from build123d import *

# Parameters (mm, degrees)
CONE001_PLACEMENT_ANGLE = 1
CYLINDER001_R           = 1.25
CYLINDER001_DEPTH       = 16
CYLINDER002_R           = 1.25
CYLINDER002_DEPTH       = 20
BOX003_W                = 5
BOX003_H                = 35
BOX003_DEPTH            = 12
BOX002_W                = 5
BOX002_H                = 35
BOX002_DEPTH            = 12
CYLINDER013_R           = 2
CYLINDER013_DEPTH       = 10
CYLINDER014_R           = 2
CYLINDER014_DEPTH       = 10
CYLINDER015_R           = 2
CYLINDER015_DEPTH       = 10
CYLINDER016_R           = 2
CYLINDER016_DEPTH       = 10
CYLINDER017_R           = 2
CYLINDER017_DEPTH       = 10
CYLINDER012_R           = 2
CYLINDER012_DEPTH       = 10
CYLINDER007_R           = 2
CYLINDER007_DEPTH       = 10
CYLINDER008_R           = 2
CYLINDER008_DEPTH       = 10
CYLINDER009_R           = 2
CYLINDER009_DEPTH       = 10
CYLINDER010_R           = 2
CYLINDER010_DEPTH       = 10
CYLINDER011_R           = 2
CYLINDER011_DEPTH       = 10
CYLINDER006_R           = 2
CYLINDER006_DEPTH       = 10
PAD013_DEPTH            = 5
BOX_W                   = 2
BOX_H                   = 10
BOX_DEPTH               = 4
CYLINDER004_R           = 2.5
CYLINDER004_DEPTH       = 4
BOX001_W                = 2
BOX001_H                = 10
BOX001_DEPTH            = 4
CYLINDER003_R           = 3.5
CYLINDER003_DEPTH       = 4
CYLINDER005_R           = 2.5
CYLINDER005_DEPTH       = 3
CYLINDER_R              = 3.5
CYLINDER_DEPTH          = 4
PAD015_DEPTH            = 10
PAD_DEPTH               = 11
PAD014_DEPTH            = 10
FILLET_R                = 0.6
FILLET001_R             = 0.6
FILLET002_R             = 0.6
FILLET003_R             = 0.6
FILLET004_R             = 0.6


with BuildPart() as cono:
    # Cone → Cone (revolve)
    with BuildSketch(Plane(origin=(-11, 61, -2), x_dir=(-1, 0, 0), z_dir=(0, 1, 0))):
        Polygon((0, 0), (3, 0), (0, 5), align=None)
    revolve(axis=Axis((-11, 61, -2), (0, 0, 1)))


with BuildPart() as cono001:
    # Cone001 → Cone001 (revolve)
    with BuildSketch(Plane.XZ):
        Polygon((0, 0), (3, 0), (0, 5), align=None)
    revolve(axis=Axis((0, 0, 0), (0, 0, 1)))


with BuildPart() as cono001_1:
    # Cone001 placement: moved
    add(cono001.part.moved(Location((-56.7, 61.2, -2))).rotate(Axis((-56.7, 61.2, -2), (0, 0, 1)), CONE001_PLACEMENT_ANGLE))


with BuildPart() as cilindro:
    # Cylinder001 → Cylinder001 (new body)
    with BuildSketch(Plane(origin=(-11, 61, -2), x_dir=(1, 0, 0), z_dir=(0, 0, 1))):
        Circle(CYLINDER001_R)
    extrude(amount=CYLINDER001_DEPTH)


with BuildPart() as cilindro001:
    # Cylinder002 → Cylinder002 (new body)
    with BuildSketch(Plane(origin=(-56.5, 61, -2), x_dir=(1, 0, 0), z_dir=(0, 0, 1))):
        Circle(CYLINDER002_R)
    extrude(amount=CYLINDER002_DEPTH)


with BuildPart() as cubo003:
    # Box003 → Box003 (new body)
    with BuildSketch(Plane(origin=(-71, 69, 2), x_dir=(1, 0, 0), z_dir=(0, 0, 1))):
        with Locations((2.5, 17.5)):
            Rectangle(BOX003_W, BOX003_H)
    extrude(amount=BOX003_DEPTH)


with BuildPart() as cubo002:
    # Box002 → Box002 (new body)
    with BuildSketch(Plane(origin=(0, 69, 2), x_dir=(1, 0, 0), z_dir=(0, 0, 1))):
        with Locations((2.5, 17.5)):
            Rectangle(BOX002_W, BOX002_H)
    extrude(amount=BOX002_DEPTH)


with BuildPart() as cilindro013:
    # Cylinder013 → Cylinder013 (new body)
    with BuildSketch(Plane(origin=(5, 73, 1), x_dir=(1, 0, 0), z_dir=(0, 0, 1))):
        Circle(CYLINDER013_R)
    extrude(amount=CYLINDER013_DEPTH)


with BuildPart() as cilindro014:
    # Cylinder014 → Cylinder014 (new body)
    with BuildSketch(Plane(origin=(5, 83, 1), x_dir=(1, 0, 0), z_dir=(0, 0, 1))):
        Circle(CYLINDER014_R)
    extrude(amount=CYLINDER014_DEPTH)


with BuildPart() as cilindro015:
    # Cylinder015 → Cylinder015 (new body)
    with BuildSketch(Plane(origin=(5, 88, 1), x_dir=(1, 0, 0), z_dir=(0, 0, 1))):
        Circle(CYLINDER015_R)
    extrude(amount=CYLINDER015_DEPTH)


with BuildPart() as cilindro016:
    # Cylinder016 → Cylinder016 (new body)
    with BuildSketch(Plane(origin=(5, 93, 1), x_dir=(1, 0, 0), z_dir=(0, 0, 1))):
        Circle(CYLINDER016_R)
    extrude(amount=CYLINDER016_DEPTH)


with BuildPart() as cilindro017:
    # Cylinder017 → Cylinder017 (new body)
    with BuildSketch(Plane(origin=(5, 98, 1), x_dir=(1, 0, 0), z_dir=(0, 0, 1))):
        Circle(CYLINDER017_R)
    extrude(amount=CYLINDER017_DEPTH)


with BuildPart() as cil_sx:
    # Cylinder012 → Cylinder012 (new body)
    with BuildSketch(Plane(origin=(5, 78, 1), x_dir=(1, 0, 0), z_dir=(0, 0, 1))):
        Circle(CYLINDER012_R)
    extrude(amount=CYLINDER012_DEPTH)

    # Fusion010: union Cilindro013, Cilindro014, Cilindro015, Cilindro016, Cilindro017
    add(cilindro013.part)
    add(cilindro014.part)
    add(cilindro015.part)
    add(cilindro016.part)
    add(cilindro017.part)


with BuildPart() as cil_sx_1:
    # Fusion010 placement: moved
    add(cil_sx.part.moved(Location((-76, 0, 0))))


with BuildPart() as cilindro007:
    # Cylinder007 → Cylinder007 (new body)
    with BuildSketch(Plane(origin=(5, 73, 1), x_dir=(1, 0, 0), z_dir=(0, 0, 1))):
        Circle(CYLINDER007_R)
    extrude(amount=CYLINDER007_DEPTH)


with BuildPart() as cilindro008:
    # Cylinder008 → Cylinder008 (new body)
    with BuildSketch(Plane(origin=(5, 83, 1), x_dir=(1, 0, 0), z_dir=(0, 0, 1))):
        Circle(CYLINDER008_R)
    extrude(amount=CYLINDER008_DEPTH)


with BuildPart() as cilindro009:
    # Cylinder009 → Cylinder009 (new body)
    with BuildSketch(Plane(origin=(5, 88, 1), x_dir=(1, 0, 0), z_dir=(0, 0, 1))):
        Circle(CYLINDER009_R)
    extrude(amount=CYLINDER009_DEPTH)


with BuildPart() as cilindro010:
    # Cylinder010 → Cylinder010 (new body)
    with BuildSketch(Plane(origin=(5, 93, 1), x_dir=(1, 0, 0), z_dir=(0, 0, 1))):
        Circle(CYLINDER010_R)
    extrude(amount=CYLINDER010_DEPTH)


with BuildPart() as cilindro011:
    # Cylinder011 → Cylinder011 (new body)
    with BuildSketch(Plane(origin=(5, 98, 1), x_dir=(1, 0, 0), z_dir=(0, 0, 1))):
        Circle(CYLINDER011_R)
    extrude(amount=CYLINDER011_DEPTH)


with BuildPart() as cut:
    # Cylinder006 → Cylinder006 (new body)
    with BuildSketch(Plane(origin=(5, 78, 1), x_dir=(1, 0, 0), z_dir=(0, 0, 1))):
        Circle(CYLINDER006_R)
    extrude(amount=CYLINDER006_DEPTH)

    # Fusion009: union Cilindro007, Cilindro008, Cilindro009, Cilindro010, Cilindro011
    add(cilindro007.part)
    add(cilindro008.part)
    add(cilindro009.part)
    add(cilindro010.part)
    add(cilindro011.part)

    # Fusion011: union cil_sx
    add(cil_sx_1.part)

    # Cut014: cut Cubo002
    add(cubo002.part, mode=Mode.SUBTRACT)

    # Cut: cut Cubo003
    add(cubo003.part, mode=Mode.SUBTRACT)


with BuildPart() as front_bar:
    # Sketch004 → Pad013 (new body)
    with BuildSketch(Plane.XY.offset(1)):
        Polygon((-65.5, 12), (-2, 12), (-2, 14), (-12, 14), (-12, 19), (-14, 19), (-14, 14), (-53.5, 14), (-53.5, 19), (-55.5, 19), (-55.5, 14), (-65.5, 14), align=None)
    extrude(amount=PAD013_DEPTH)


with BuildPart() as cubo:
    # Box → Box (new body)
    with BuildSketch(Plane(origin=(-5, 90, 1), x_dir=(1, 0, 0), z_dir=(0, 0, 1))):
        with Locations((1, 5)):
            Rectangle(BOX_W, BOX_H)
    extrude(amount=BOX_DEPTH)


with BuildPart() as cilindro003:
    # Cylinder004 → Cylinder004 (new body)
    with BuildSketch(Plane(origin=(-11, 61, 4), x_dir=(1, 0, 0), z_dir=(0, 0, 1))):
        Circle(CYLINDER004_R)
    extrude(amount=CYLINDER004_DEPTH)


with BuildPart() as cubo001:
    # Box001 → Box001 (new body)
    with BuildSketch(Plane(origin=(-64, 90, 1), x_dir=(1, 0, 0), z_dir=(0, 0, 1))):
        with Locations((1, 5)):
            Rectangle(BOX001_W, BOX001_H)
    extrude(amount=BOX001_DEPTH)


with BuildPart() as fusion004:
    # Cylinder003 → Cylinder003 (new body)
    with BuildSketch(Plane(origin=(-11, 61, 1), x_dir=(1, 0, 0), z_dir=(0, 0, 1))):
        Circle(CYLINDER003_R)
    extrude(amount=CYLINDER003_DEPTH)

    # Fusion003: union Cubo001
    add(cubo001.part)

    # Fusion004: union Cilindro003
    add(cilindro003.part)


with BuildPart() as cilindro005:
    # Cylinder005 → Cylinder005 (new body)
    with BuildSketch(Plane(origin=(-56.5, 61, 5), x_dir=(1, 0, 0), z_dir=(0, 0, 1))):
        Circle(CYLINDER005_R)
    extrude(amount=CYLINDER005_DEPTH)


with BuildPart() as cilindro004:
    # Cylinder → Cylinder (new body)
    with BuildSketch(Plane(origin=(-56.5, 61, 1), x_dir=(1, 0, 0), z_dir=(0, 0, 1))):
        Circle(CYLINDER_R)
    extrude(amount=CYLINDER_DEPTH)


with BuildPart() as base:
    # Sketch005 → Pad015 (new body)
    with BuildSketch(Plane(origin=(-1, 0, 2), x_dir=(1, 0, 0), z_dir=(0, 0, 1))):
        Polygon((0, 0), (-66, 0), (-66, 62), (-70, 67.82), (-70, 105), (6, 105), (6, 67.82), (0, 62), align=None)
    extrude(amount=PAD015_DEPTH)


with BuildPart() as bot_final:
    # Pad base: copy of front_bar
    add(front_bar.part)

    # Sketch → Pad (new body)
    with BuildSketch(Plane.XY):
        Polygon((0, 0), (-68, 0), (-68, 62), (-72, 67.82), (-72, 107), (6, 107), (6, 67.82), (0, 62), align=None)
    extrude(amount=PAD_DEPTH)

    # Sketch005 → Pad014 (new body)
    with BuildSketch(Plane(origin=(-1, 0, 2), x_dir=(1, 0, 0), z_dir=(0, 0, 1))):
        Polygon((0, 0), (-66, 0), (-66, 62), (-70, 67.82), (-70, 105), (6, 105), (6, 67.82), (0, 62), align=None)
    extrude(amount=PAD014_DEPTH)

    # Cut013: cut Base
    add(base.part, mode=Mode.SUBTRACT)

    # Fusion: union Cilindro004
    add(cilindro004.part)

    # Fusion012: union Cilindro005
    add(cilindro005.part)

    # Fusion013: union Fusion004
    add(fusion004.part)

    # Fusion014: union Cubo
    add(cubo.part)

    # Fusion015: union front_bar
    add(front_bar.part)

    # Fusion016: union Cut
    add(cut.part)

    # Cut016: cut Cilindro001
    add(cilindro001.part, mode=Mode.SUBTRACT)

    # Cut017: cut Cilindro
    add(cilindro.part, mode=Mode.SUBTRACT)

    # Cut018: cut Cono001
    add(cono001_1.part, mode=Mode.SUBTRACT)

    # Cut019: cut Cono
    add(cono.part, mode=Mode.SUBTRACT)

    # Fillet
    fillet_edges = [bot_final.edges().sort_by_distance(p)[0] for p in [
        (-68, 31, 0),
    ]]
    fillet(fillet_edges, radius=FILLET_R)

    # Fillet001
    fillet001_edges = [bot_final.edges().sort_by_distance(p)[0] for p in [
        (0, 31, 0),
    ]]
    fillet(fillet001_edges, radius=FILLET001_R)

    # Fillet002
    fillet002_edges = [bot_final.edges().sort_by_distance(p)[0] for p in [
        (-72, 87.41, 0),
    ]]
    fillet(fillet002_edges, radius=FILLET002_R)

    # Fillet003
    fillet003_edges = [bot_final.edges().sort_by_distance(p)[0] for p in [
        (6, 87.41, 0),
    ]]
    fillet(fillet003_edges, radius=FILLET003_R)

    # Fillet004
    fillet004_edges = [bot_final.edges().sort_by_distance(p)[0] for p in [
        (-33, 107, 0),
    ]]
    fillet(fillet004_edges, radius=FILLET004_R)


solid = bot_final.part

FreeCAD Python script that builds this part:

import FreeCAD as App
import Part
import Sketcher
from FreeCAD import Vector


def edges_at(feature, points):
    """Names of the edges that pass closest to the given points."""
    edges = feature.Shape.Edges
    near = lambda p: min(range(len(edges)), key=lambda i: edges[i].distToShape(Part.Vertex(*p))[0])
    return sorted({f"Edge{near(p) + 1}" for p in points})

doc = App.newDocument("Part")
params = doc.addObject("Spreadsheet::Sheet", "Params")
for row, (alias, value) in enumerate([
    ("sketch1_width", "3 mm"),
    ("sketch1_height", "5 mm"),
    ("revolution_angle", "360 deg"),
    ("sketch2_width", "3 mm"),
    ("sketch2_height", "5 mm"),
    ("revolution2_angle", "360 deg"),
    ("sketch3_diameter", "2.5 mm"),
    ("pad1_length", "16 mm"),
    ("sketch4_diameter", "2.5 mm"),
    ("pad2_length", "20 mm"),
    ("sketch5_width", "5 mm"),
    ("sketch5_height", "35 mm"),
    ("pad3_length", "12 mm"),
    ("sketch6_width", "5 mm"),
    ("sketch6_height", "35 mm"),
    ("pad4_length", "12 mm"),
    ("sketch7_diameter", "4 mm"),
    ("pad5_length", "10 mm"),
    ("sketch8_diameter", "4 mm"),
    ("pad6_length", "10 mm"),
    ("sketch9_diameter", "4 mm"),
    ("pad7_length", "10 mm"),
    ("sketch10_diameter", "4 mm"),
    ("pad8_length", "10 mm"),
    ("sketch11_diameter", "4 mm"),
    ("pad9_length", "10 mm"),
    ("sketch12_diameter", "4 mm"),
    ("pad10_length", "10 mm"),
    ("sketch13_diameter", "4 mm"),
    ("pad11_length", "10 mm"),
    ("sketch14_diameter", "4 mm"),
    ("pad12_length", "10 mm"),
    ("sketch15_diameter", "4 mm"),
    ("pad13_length", "10 mm"),
    ("sketch16_diameter", "4 mm"),
    ("pad14_length", "10 mm"),
    ("sketch17_diameter", "4 mm"),
    ("pad15_length", "10 mm"),
    ("sketch18_diameter", "4 mm"),
    ("pad16_length", "10 mm"),
    ("sketch19_width", "10 mm"),
    ("sketch19_width2", "2 mm"),
    ("sketch19_height", "5 mm"),
    ("sketch19_width3", "63.5 mm"),
    ("pad17_length", "5 mm"),
    ("sketch20_width", "2 mm"),
    ("sketch20_height", "10 mm"),
    ("pad18_length", "4 mm"),
    ("sketch21_diameter", "5 mm"),
    ("pad19_length", "4 mm"),
    ("sketch22_width", "2 mm"),
    ("sketch22_height", "10 mm"),
    ("pad20_length", "4 mm"),
    ("sketch23_diameter", "7 mm"),
    ("pad21_length", "4 mm"),
    ("sketch24_diameter", "5 mm"),
    ("pad22_length", "3 mm"),
    ("sketch25_diameter", "7 mm"),
    ("pad23_length", "4 mm"),
    ("sketch26_width", "66 mm"),
    ("sketch26_width2", "76 mm"),
    ("sketch26_height", "62 mm"),
    ("sketch26_height2", "37.18 mm"),
    ("pad24_length", "10 mm"),
    ("sketch27_width", "68 mm"),
    ("sketch27_width2", "78 mm"),
    ("sketch27_height", "62 mm"),
    ("sketch27_height2", "39.18 mm"),
    ("pad25_length", "11 mm"),
    ("sketch28_width", "66 mm"),
    ("sketch28_width2", "76 mm"),
    ("sketch28_height", "62 mm"),
    ("sketch28_height2", "37.18 mm"),
    ("pad26_length", "10 mm"),
    ("fillet_radius", "0.6 mm"),
    ("fillet2_radius", "0.6 mm"),
    ("fillet3_radius", "0.6 mm"),
    ("fillet4_radius", "0.6 mm"),
    ("fillet5_radius", "0.6 mm"),
], start=1):
    params.set(f"A{row}", alias)
    params.set(f"B{row}", "=" + value)
    params.setAlias(f"B{row}", alias)

body = doc.addObject("PartDesign::Body", "Body")

# Sketch on XZ plane
sketch1 = body.newObject("Sketcher::SketchObject", "Sketch")
sketch1.AttachmentSupport = (doc.getObject("XZ_Plane"), [""])
sketch1.MapMode = "FlatFace"
sketch1.AttachmentOffset = App.Placement(Vector(0, 0, -61), App.Rotation())
sketch1.addGeometry(Part.LineSegment(Vector(-11, -2, 0), Vector(-14, -2, 0)), False)
sketch1.addGeometry(Part.LineSegment(Vector(-14, -2, 0), Vector(-11, 3, 0)), False)
sketch1.addGeometry(Part.LineSegment(Vector(-11, 3, 0), Vector(-11, -2, 0)), False)
sketch1.addGeometry(Part.LineSegment(Vector(-11, -2, 0), Vector(-11, 3, 0)), True)  # axis
sketch1.addConstraint(Sketcher.Constraint("Coincident", 0, 2, 1, 1))
sketch1.addConstraint(Sketcher.Constraint("Coincident", 1, 2, 2, 1))
sketch1.addConstraint(Sketcher.Constraint("Coincident", 2, 2, 0, 1))
sketch1.addConstraint(Sketcher.Constraint("Horizontal", 0))
sketch1.addConstraint(Sketcher.Constraint("Vertical", 2))
sketch1.addConstraint(Sketcher.Constraint("Vertical", 3))
sketch1.addConstraint(Sketcher.Constraint("Coincident", 3, 1, 2, 2))
sketch1.addConstraint(Sketcher.Constraint("Equal", 2, 3))
sketch1.addConstraint(Sketcher.Constraint("DistanceX", 0, 2, 0, 1, 3.0))
sketch1.addConstraint(Sketcher.Constraint("DistanceY", 2, 2, 2, 1, 5.0))
sketch1.addConstraint(Sketcher.Constraint("DistanceX", 0, 2, -1, 1, 14.0))
sketch1.addConstraint(Sketcher.Constraint("DistanceY", 0, 2, -1, 1, 2.0))
sketch1.setExpression("Constraints[8]", "Params.sketch1_width")
sketch1.setExpression("Constraints[9]", "Params.sketch1_height")
revolution = body.newObject("PartDesign::Revolution", "Revolution")
revolution.Profile = sketch1
revolution.ReferenceAxis = (sketch1, ["Axis0"])
revolution.setExpression("Angle", "Params.revolution_angle")
body2 = doc.addObject("PartDesign::Body", "Body001")

# Sketch on XZ plane
sketch2 = body2.newObject("Sketcher::SketchObject", "Sketch001")
sketch2.AttachmentSupport = (doc.getObject("XZ_Plane001"), [""])
sketch2.MapMode = "FlatFace"
sketch2.addGeometry(Part.LineSegment(Vector(0, 0, 0), Vector(3, 0, 0)), False)
sketch2.addGeometry(Part.LineSegment(Vector(3, 0, 0), Vector(0, 5, 0)), False)
sketch2.addGeometry(Part.LineSegment(Vector(0, 5, 0), Vector(0, 0, 0)), False)
sketch2.addConstraint(Sketcher.Constraint("Coincident", 0, 2, 1, 1))
sketch2.addConstraint(Sketcher.Constraint("Coincident", 1, 2, 2, 1))
sketch2.addConstraint(Sketcher.Constraint("Coincident", 2, 2, 0, 1))
sketch2.addConstraint(Sketcher.Constraint("Horizontal", 0))
sketch2.addConstraint(Sketcher.Constraint("Vertical", 2))
sketch2.addConstraint(Sketcher.Constraint("Coincident", 2, 2, -1, 1))
sketch2.addConstraint(Sketcher.Constraint("DistanceX", 0, 1, 0, 2, 3.0))
sketch2.addConstraint(Sketcher.Constraint("DistanceY", 2, 2, 2, 1, 5.0))
sketch2.setExpression("Constraints[6]", "Params.sketch2_width")
sketch2.setExpression("Constraints[7]", "Params.sketch2_height")
revolution2 = body2.newObject("PartDesign::Revolution", "Revolution001")
revolution2.Profile = sketch2
revolution2.ReferenceAxis = (sketch2, ["V_Axis"])
revolution2.setExpression("Angle", "Params.revolution2_angle")
body3 = doc.addObject("PartDesign::Body", "Body002")
doc.recompute()

body2.Placement = App.Placement(Vector(-56.7, 61.2, -2), App.Rotation(Vector(0, 0, 1), 1))
boolean = body3.newObject("PartDesign::Boolean", "Boolean")
boolean.Type = "Fuse"
boolean.addObjects([body2])
body4 = doc.addObject("PartDesign::Body", "Body003")

# Sketch on XY plane
sketch3 = body4.newObject("Sketcher::SketchObject", "Sketch002")
sketch3.AttachmentSupport = (doc.getObject("XY_Plane003"), [""])
sketch3.MapMode = "FlatFace"
sketch3.AttachmentOffset = App.Placement(Vector(0, 0, -2), App.Rotation())
sketch3.addGeometry(Part.Circle(Vector(-11, 61, 0), Vector(0, 0, 1), 1.2), False)
sketch3.addConstraint(Sketcher.Constraint("Diameter", 0, 2.5))
sketch3.addConstraint(Sketcher.Constraint("DistanceX", 0, 3, -1, 1, 11.0))
sketch3.addConstraint(Sketcher.Constraint("DistanceY", -1, 1, 0, 3, 61.0))
sketch3.setExpression("Constraints[0]", "Params.sketch3_diameter")
pad1 = body4.newObject("PartDesign::Pad", "Pad")
pad1.Profile = sketch3
pad1.setExpression("Length", "Params.pad1_length")
body5 = doc.addObject("PartDesign::Body", "Body004")

# Sketch on XY plane
sketch4 = body5.newObject("Sketcher::SketchObject", "Sketch003")
sketch4.AttachmentSupport = (doc.getObject("XY_Plane004"), [""])
sketch4.MapMode = "FlatFace"
sketch4.AttachmentOffset = App.Placement(Vector(0, 0, -2), App.Rotation())
sketch4.addGeometry(Part.Circle(Vector(-56.5, 61, 0), Vector(0, 0, 1), 1.2), False)
sketch4.addConstraint(Sketcher.Constraint("Diameter", 0, 2.5))
sketch4.addConstraint(Sketcher.Constraint("DistanceY", -1, 1, 0, 3, 61.0))
sketch4.addConstraint(Sketcher.Constraint("DistanceX", 0, 3, -1, 1, 56.5))
sketch4.setExpression("Constraints[0]", "Params.sketch4_diameter")
pad2 = body5.newObject("PartDesign::Pad", "Pad001")
pad2.Profile = sketch4
pad2.setExpression("Length", "Params.pad2_length")
body6 = doc.addObject("PartDesign::Body", "Body005")

# Sketch on XY plane
sketch5 = body6.newObject("Sketcher::SketchObject", "Sketch004")
sketch5.AttachmentSupport = (doc.getObject("XY_Plane005"), [""])
sketch5.MapMode = "FlatFace"
sketch5.AttachmentOffset = App.Placement(Vector(0, 0, 2), App.Rotation())
sketch5.addGeometry(Part.LineSegment(Vector(-71, 104, 0), Vector(-71, 69, 0)), False)
sketch5.addGeometry(Part.LineSegment(Vector(-71, 69, 0), Vector(-66, 69, 0)), False)
sketch5.addGeometry(Part.LineSegment(Vector(-66, 69, 0), Vector(-66, 104, 0)), False)
sketch5.addGeometry(Part.LineSegment(Vector(-66, 104, 0), Vector(-71, 104, 0)), False)
sketch5.addConstraint(Sketcher.Constraint("Coincident", 0, 2, 1, 1))
sketch5.addConstraint(Sketcher.Constraint("Coincident", 1, 2, 2, 1))
sketch5.addConstraint(Sketcher.Constraint("Coincident", 2, 2, 3, 1))
sketch5.addConstraint(Sketcher.Constraint("Coincident", 3, 2, 0, 1))
sketch5.addConstraint(Sketcher.Constraint("Vertical", 0))
sketch5.addConstraint(Sketcher.Constraint("Horizontal", 1))
sketch5.addConstraint(Sketcher.Constraint("Vertical", 2))
sketch5.addConstraint(Sketcher.Constraint("Horizontal", 3))
sketch5.addConstraint(Sketcher.Constraint("DistanceX", 1, 1, 1, 2, 5.0))
sketch5.addConstraint(Sketcher.Constraint("DistanceY", 0, 2, 0, 1, 35.0))
sketch5.addConstraint(Sketcher.Constraint("DistanceX", 0, 2, -1, 1, 71.0))
sketch5.addConstraint(Sketcher.Constraint("DistanceY", -1, 1, 0, 2, 69.0))
sketch5.setExpression("Constraints[8]", "Params.sketch5_width")
sketch5.setExpression("Constraints[9]", "Params.sketch5_height")
pad3 = body6.newObject("PartDesign::Pad", "Pad002")
pad3.Profile = sketch5
pad3.setExpression("Length", "Params.pad3_length")
body7 = doc.addObject("PartDesign::Body", "Body006")

# Sketch on XY plane
sketch6 = body7.newObject("Sketcher::SketchObject", "Sketch005")
sketch6.AttachmentSupport = (doc.getObject("XY_Plane006"), [""])
sketch6.MapMode = "FlatFace"
sketch6.AttachmentOffset = App.Placement(Vector(0, 0, 2), App.Rotation())
sketch6.addGeometry(Part.LineSegment(Vector(0, 104, 0), Vector(0, 69, 0)), False)
sketch6.addGeometry(Part.LineSegment(Vector(0, 69, 0), Vector(5, 69, 0)), False)
sketch6.addGeometry(Part.LineSegment(Vector(5, 69, 0), Vector(5, 104, 0)), False)
sketch6.addGeometry(Part.LineSegment(Vector(5, 104, 0), Vector(0, 104, 0)), False)
sketch6.addConstraint(Sketcher.Constraint("Coincident", 0, 2, 1, 1))
sketch6.addConstraint(Sketcher.Constraint("Coincident", 1, 2, 2, 1))
sketch6.addConstraint(Sketcher.Constraint("Coincident", 2, 2, 3, 1))
sketch6.addConstraint(Sketcher.Constraint("Coincident", 3, 2, 0, 1))
sketch6.addConstraint(Sketcher.Constraint("Vertical", 0))
sketch6.addConstraint(Sketcher.Constraint("Horizontal", 1))
sketch6.addConstraint(Sketcher.Constraint("Vertical", 2))
sketch6.addConstraint(Sketcher.Constraint("Horizontal", 3))
sketch6.addConstraint(Sketcher.Constraint("PointOnObject", 0, 2, -2))
sketch6.addConstraint(Sketcher.Constraint("DistanceX", 1, 1, 1, 2, 5.0))
sketch6.addConstraint(Sketcher.Constraint("DistanceY", 0, 2, 0, 1, 35.0))
sketch6.addConstraint(Sketcher.Constraint("DistanceY", -1, 1, 0, 2, 69.0))
sketch6.setExpression("Constraints[9]", "Params.sketch6_width")
sketch6.setExpression("Constraints[10]", "Params.sketch6_height")
pad4 = body7.newObject("PartDesign::Pad", "Pad003")
pad4.Profile = sketch6
pad4.setExpression("Length", "Params.pad4_length")
body8 = doc.addObject("PartDesign::Body", "Body007")

# Sketch on XY plane
sketch7 = body8.newObject("Sketcher::SketchObject", "Sketch006")
sketch7.AttachmentSupport = (doc.getObject("XY_Plane007"), [""])
sketch7.MapMode = "FlatFace"
sketch7.AttachmentOffset = App.Placement(Vector(0, 0, 1), App.Rotation())
sketch7.addGeometry(Part.Circle(Vector(5, 73, 0), Vector(0, 0, 1), 2), False)
sketch7.addConstraint(Sketcher.Constraint("Diameter", 0, 4.0))
sketch7.addConstraint(Sketcher.Constraint("DistanceX", -1, 1, 0, 3, 5.0))
sketch7.addConstraint(Sketcher.Constraint("DistanceY", -1, 1, 0, 3, 73.0))
sketch7.setExpression("Constraints[0]", "Params.sketch7_diameter")
pad5 = body8.newObject("PartDesign::Pad", "Pad004")
pad5.Profile = sketch7
pad5.setExpression("Length", "Params.pad5_length")
body9 = doc.addObject("PartDesign::Body", "Body008")

# Sketch on XY plane
sketch8 = body9.newObject("Sketcher::SketchObject", "Sketch007")
sketch8.AttachmentSupport = (doc.getObject("XY_Plane008"), [""])
sketch8.MapMode = "FlatFace"
sketch8.AttachmentOffset = App.Placement(Vector(0, 0, 1), App.Rotation())
sketch8.addGeometry(Part.Circle(Vector(5, 83, 0), Vector(0, 0, 1), 2), False)
sketch8.addConstraint(Sketcher.Constraint("Diameter", 0, 4.0))
sketch8.addConstraint(Sketcher.Constraint("DistanceX", -1, 1, 0, 3, 5.0))
sketch8.addConstraint(Sketcher.Constraint("DistanceY", -1, 1, 0, 3, 83.0))
sketch8.setExpression("Constraints[0]", "Params.sketch8_diameter")
pad6 = body9.newObject("PartDesign::Pad", "Pad005")
pad6.Profile = sketch8
pad6.setExpression("Length", "Params.pad6_length")
body10 = doc.addObject("PartDesign::Body", "Body009")

# Sketch on XY plane
sketch9 = body10.newObject("Sketcher::SketchObject", "Sketch008")
sketch9.AttachmentSupport = (doc.getObject("XY_Plane009"), [""])
sketch9.MapMode = "FlatFace"
sketch9.AttachmentOffset = App.Placement(Vector(0, 0, 1), App.Rotation())
sketch9.addGeometry(Part.Circle(Vector(5, 88, 0), Vector(0, 0, 1), 2), False)
sketch9.addConstraint(Sketcher.Constraint("Diameter", 0, 4.0))
sketch9.addConstraint(Sketcher.Constraint("DistanceX", -1, 1, 0, 3, 5.0))
sketch9.addConstraint(Sketcher.Constraint("DistanceY", -1, 1, 0, 3, 88.0))
sketch9.setExpression("Constraints[0]", "Params.sketch9_diameter")
pad7 = body10.newObject("PartDesign::Pad", "Pad006")
pad7.Profile = sketch9
pad7.setExpression("Length", "Params.pad7_length")
body11 = doc.addObject("PartDesign::Body", "Body010")

# Sketch on XY plane
sketch10 = body11.newObject("Sketcher::SketchObject", "Sketch009")
sketch10.AttachmentSupport = (doc.getObject("XY_Plane010"), [""])
sketch10.MapMode = "FlatFace"
sketch10.AttachmentOffset = App.Placement(Vector(0, 0, 1), App.Rotation())
sketch10.addGeometry(Part.Circle(Vector(5, 93, 0), Vector(0, 0, 1), 2), False)
sketch10.addConstraint(Sketcher.Constraint("Diameter", 0, 4.0))
sketch10.addConstraint(Sketcher.Constraint("DistanceX", -1, 1, 0, 3, 5.0))
sketch10.addConstraint(Sketcher.Constraint("DistanceY", -1, 1, 0, 3, 93.0))
sketch10.setExpression("Constraints[0]", "Params.sketch10_diameter")
pad8 = body11.newObject("PartDesign::Pad", "Pad007")
pad8.Profile = sketch10
pad8.setExpression("Length", "Params.pad8_length")
body12 = doc.addObject("PartDesign::Body", "Body011")

# Sketch on XY plane
sketch11 = body12.newObject("Sketcher::SketchObject", "Sketch010")
sketch11.AttachmentSupport = (doc.getObject("XY_Plane011"), [""])
sketch11.MapMode = "FlatFace"
sketch11.AttachmentOffset = App.Placement(Vector(0, 0, 1), App.Rotation())
sketch11.addGeometry(Part.Circle(Vector(5, 98, 0), Vector(0, 0, 1), 2), False)
sketch11.addConstraint(Sketcher.Constraint("Diameter", 0, 4.0))
sketch11.addConstraint(Sketcher.Constraint("DistanceX", -1, 1, 0, 3, 5.0))
sketch11.addConstraint(Sketcher.Constraint("DistanceY", -1, 1, 0, 3, 98.0))
sketch11.setExpression("Constraints[0]", "Params.sketch11_diameter")
pad9 = body12.newObject("PartDesign::Pad", "Pad008")
pad9.Profile = sketch11
pad9.setExpression("Length", "Params.pad9_length")
body13 = doc.addObject("PartDesign::Body", "Body012")
body13.AllowCompound = True

# Sketch on XY plane
sketch12 = body13.newObject("Sketcher::SketchObject", "Sketch011")
sketch12.AttachmentSupport = (doc.getObject("XY_Plane012"), [""])
sketch12.MapMode = "FlatFace"
sketch12.AttachmentOffset = App.Placement(Vector(0, 0, 1), App.Rotation())
sketch12.addGeometry(Part.Circle(Vector(5, 78, 0), Vector(0, 0, 1), 2), False)
sketch12.addConstraint(Sketcher.Constraint("Diameter", 0, 4.0))
sketch12.addConstraint(Sketcher.Constraint("DistanceX", -1, 1, 0, 3, 5.0))
sketch12.addConstraint(Sketcher.Constraint("DistanceY", -1, 1, 0, 3, 78.0))
sketch12.setExpression("Constraints[0]", "Params.sketch12_diameter")
pad10 = body13.newObject("PartDesign::Pad", "Pad009")
pad10.Profile = sketch12
pad10.setExpression("Length", "Params.pad10_length")
doc.recompute()

boolean2 = body13.newObject("PartDesign::Boolean", "Boolean001")
boolean2.Type = "Fuse"
boolean2.addObjects([body8])
doc.recompute()

boolean3 = body13.newObject("PartDesign::Boolean", "Boolean002")
boolean3.Type = "Fuse"
boolean3.addObjects([body9])
doc.recompute()

boolean4 = body13.newObject("PartDesign::Boolean", "Boolean003")
boolean4.Type = "Fuse"
boolean4.addObjects([body10])
doc.recompute()

boolean5 = body13.newObject("PartDesign::Boolean", "Boolean004")
boolean5.Type = "Fuse"
boolean5.addObjects([body11])
doc.recompute()

boolean6 = body13.newObject("PartDesign::Boolean", "Boolean005")
boolean6.Type = "Fuse"
boolean6.addObjects([body12])
body14 = doc.addObject("PartDesign::Body", "Body013")
body14.AllowCompound = True
doc.recompute()

body13.Placement = App.Placement(Vector(-76, 0, 0), App.Rotation(Vector(0, 0, 1), 0))
boolean7 = body14.newObject("PartDesign::Boolean", "Boolean006")
boolean7.Type = "Fuse"
boolean7.addObjects([body13])
body15 = doc.addObject("PartDesign::Body", "Body014")

# Sketch on XY plane
sketch13 = body15.newObject("Sketcher::SketchObject", "Sketch012")
sketch13.AttachmentSupport = (doc.getObject("XY_Plane014"), [""])
sketch13.MapMode = "FlatFace"
sketch13.AttachmentOffset = App.Placement(Vector(0, 0, 1), App.Rotation())
sketch13.addGeometry(Part.Circle(Vector(5, 73, 0), Vector(0, 0, 1), 2), False)
sketch13.addConstraint(Sketcher.Constraint("Diameter", 0, 4.0))
sketch13.addConstraint(Sketcher.Constraint("DistanceX", -1, 1, 0, 3, 5.0))
sketch13.addConstraint(Sketcher.Constraint("DistanceY", -1, 1, 0, 3, 73.0))
sketch13.setExpression("Constraints[0]", "Params.sketch13_diameter")
pad11 = body15.newObject("PartDesign::Pad", "Pad010")
pad11.Profile = sketch13
pad11.setExpression("Length", "Params.pad11_length")
body16 = doc.addObject("PartDesign::Body", "Body015")

# Sketch on XY plane
sketch14 = body16.newObject("Sketcher::SketchObject", "Sketch013")
sketch14.AttachmentSupport = (doc.getObject("XY_Plane015"), [""])
sketch14.MapMode = "FlatFace"
sketch14.AttachmentOffset = App.Placement(Vector(0, 0, 1), App.Rotation())
sketch14.addGeometry(Part.Circle(Vector(5, 83, 0), Vector(0, 0, 1), 2), False)
sketch14.addConstraint(Sketcher.Constraint("Diameter", 0, 4.0))
sketch14.addConstraint(Sketcher.Constraint("DistanceX", -1, 1, 0, 3, 5.0))
sketch14.addConstraint(Sketcher.Constraint("DistanceY", -1, 1, 0, 3, 83.0))
sketch14.setExpression("Constraints[0]", "Params.sketch14_diameter")
pad12 = body16.newObject("PartDesign::Pad", "Pad011")
pad12.Profile = sketch14
pad12.setExpression("Length", "Params.pad12_length")
body17 = doc.addObject("PartDesign::Body", "Body016")

# Sketch on XY plane
sketch15 = body17.newObject("Sketcher::SketchObject", "Sketch014")
sketch15.AttachmentSupport = (doc.getObject("XY_Plane016"), [""])
sketch15.MapMode = "FlatFace"
sketch15.AttachmentOffset = App.Placement(Vector(0, 0, 1), App.Rotation())
sketch15.addGeometry(Part.Circle(Vector(5, 88, 0), Vector(0, 0, 1), 2), False)
sketch15.addConstraint(Sketcher.Constraint("Diameter", 0, 4.0))
sketch15.addConstraint(Sketcher.Constraint("DistanceX", -1, 1, 0, 3, 5.0))
sketch15.addConstraint(Sketcher.Constraint("DistanceY", -1, 1, 0, 3, 88.0))
sketch15.setExpression("Constraints[0]", "Params.sketch15_diameter")
pad13 = body17.newObject("PartDesign::Pad", "Pad012")
pad13.Profile = sketch15
pad13.setExpression("Length", "Params.pad13_length")
body18 = doc.addObject("PartDesign::Body", "Body017")

# Sketch on XY plane
sketch16 = body18.newObject("Sketcher::SketchObject", "Sketch015")
sketch16.AttachmentSupport = (doc.getObject("XY_Plane017"), [""])
sketch16.MapMode = "FlatFace"
sketch16.AttachmentOffset = App.Placement(Vector(0, 0, 1), App.Rotation())
sketch16.addGeometry(Part.Circle(Vector(5, 93, 0), Vector(0, 0, 1), 2), False)
sketch16.addConstraint(Sketcher.Constraint("Diameter", 0, 4.0))
sketch16.addConstraint(Sketcher.Constraint("DistanceX", -1, 1, 0, 3, 5.0))
sketch16.addConstraint(Sketcher.Constraint("DistanceY", -1, 1, 0, 3, 93.0))
sketch16.setExpression("Constraints[0]", "Params.sketch16_diameter")
pad14 = body18.newObject("PartDesign::Pad", "Pad013")
pad14.Profile = sketch16
pad14.setExpression("Length", "Params.pad14_length")
body19 = doc.addObject("PartDesign::Body", "Body018")

# Sketch on XY plane
sketch17 = body19.newObject("Sketcher::SketchObject", "Sketch016")
sketch17.AttachmentSupport = (doc.getObject("XY_Plane018"), [""])
sketch17.MapMode = "FlatFace"
sketch17.AttachmentOffset = App.Placement(Vector(0, 0, 1), App.Rotation())
sketch17.addGeometry(Part.Circle(Vector(5, 98, 0), Vector(0, 0, 1), 2), False)
sketch17.addConstraint(Sketcher.Constraint("Diameter", 0, 4.0))
sketch17.addConstraint(Sketcher.Constraint("DistanceX", -1, 1, 0, 3, 5.0))
sketch17.addConstraint(Sketcher.Constraint("DistanceY", -1, 1, 0, 3, 98.0))
sketch17.setExpression("Constraints[0]", "Params.sketch17_diameter")
pad15 = body19.newObject("PartDesign::Pad", "Pad014")
pad15.Profile = sketch17
pad15.setExpression("Length", "Params.pad15_length")
body20 = doc.addObject("PartDesign::Body", "Body019")
body20.AllowCompound = True

# Sketch on XY plane
sketch18 = body20.newObject("Sketcher::SketchObject", "Sketch017")
sketch18.AttachmentSupport = (doc.getObject("XY_Plane019"), [""])
sketch18.MapMode = "FlatFace"
sketch18.AttachmentOffset = App.Placement(Vector(0, 0, 1), App.Rotation())
sketch18.addGeometry(Part.Circle(Vector(5, 78, 0), Vector(0, 0, 1), 2), False)
sketch18.addConstraint(Sketcher.Constraint("Diameter", 0, 4.0))
sketch18.addConstraint(Sketcher.Constraint("DistanceX", -1, 1, 0, 3, 5.0))
sketch18.addConstraint(Sketcher.Constraint("DistanceY", -1, 1, 0, 3, 78.0))
sketch18.setExpression("Constraints[0]", "Params.sketch18_diameter")
pad16 = body20.newObject("PartDesign::Pad", "Pad015")
pad16.Profile = sketch18
pad16.setExpression("Length", "Params.pad16_length")
doc.recompute()

boolean8 = body20.newObject("PartDesign::Boolean", "Boolean007")
boolean8.Type = "Fuse"
boolean8.addObjects([body15])
doc.recompute()

boolean9 = body20.newObject("PartDesign::Boolean", "Boolean008")
boolean9.Type = "Fuse"
boolean9.addObjects([body16])
doc.recompute()

boolean10 = body20.newObject("PartDesign::Boolean", "Boolean009")
boolean10.Type = "Fuse"
boolean10.addObjects([body17])
doc.recompute()

boolean11 = body20.newObject("PartDesign::Boolean", "Boolean010")
boolean11.Type = "Fuse"
boolean11.addObjects([body18])
doc.recompute()

boolean12 = body20.newObject("PartDesign::Boolean", "Boolean011")
boolean12.Type = "Fuse"
boolean12.addObjects([body19])
doc.recompute()

boolean13 = body20.newObject("PartDesign::Boolean", "Boolean012")
boolean13.Type = "Fuse"
boolean13.addObjects([body14])
doc.recompute()

boolean14 = body20.newObject("PartDesign::Boolean", "Boolean013")
boolean14.Type = "Cut"
boolean14.addObjects([body7])
doc.recompute()

boolean15 = body20.newObject("PartDesign::Boolean", "Boolean014")
boolean15.Type = "Cut"
boolean15.addObjects([body6])
body21 = doc.addObject("PartDesign::Body", "Body020")

# Sketch on XY plane
sketch19 = body21.newObject("Sketcher::SketchObject", "Sketch018")
sketch19.AttachmentSupport = (doc.getObject("XY_Plane020"), [""])
sketch19.MapMode = "FlatFace"
sketch19.AttachmentOffset = App.Placement(Vector(0, 0, 1), App.Rotation())
sketch19.addGeometry(Part.LineSegment(Vector(-65.5, 12, 0), Vector(-2, 12, 0)), False)
sketch19.addGeometry(Part.LineSegment(Vector(-2, 12, 0), Vector(-2, 14, 0)), False)
sketch19.addGeometry(Part.LineSegment(Vector(-2, 14, 0), Vector(-12, 14, 0)), False)
sketch19.addGeometry(Part.LineSegment(Vector(-12, 14, 0), Vector(-12, 19, 0)), False)
sketch19.addGeometry(Part.LineSegment(Vector(-12, 19, 0), Vector(-14, 19, 0)), False)
sketch19.addGeometry(Part.LineSegment(Vector(-14, 19, 0), Vector(-14, 14, 0)), False)
sketch19.addGeometry(Part.LineSegment(Vector(-14, 14, 0), Vector(-53.5, 14, 0)), False)
sketch19.addGeometry(Part.LineSegment(Vector(-53.5, 14, 0), Vector(-53.5, 19, 0)), False)
sketch19.addGeometry(Part.LineSegment(Vector(-53.5, 19, 0), Vector(-55.5, 19, 0)), False)
sketch19.addGeometry(Part.LineSegment(Vector(-55.5, 19, 0), Vector(-55.5, 14, 0)), False)
sketch19.addGeometry(Part.LineSegment(Vector(-55.5, 14, 0), Vector(-65.5, 14, 0)), False)
sketch19.addGeometry(Part.LineSegment(Vector(-65.5, 14, 0), Vector(-65.5, 12, 0)), False)
sketch19.addConstraint(Sketcher.Constraint("Coincident", 0, 2, 1, 1))
sketch19.addConstraint(Sketcher.Constraint("Coincident", 1, 2, 2, 1))
sketch19.addConstraint(Sketcher.Constraint("Coincident", 2, 2, 3, 1))
sketch19.addConstraint(Sketcher.Constraint("Coincident", 3, 2, 4, 1))
sketch19.addConstraint(Sketcher.Constraint("Coincident", 4, 2, 5, 1))
sketch19.addConstraint(Sketcher.Constraint("Coincident", 5, 2, 6, 1))
sketch19.addConstraint(Sketcher.Constraint("Coincident", 6, 2, 7, 1))
sketch19.addConstraint(Sketcher.Constraint("Coincident", 7, 2, 8, 1))
sketch19.addConstraint(Sketcher.Constraint("Coincident", 8, 2, 9, 1))
sketch19.addConstraint(Sketcher.Constraint("Coincident", 9, 2, 10, 1))
sketch19.addConstraint(Sketcher.Constraint("Coincident", 10, 2, 11, 1))
sketch19.addConstraint(Sketcher.Constraint("Coincident", 11, 2, 0, 1))
sketch19.addConstraint(Sketcher.Constraint("Horizontal", 0))
sketch19.addConstraint(Sketcher.Constraint("Vertical", 1))
sketch19.addConstraint(Sketcher.Constraint("Horizontal", 2))
sketch19.addConstraint(Sketcher.Constraint("Vertical", 3))
sketch19.addConstraint(Sketcher.Constraint("Horizontal", 4))
sketch19.addConstraint(Sketcher.Constraint("Vertical", 5))
sketch19.addConstraint(Sketcher.Constraint("Horizontal", 6))
sketch19.addConstraint(Sketcher.Constraint("Vertical", 7))
sketch19.addConstraint(Sketcher.Constraint("Horizontal", 8))
sketch19.addConstraint(Sketcher.Constraint("Vertical", 9))
sketch19.addConstraint(Sketcher.Constraint("Horizontal", 10))
sketch19.addConstraint(Sketcher.Constraint("Vertical", 11))
sketch19.addConstraint(Sketcher.Constraint("Horizontal", 2, 2, 5, 2))
sketch19.addConstraint(Sketcher.Constraint("Horizontal", 4, 2, 7, 2))
sketch19.addConstraint(Sketcher.Constraint("Horizontal", 6, 2, 9, 2))
sketch19.addConstraint(Sketcher.Constraint("Equal", 4, 8))
sketch19.addConstraint(Sketcher.Constraint("Equal", 2, 10))
sketch19.addConstraint(Sketcher.Constraint("Equal", 8, 1))
sketch19.addConstraint(Sketcher.Constraint("DistanceX", 2, 2, 2, 1, 10.0))
sketch19.addConstraint(Sketcher.Constraint("DistanceX", 4, 2, 4, 1, 2.0))
sketch19.addConstraint(Sketcher.Constraint("DistanceY", 3, 1, 3, 2, 5.0))
sketch19.addConstraint(Sketcher.Constraint("DistanceX", 0, 1, 0, 2, 63.5))
sketch19.addConstraint(Sketcher.Constraint("DistanceX", 0, 2, -1, 1, 2.0))
sketch19.addConstraint(Sketcher.Constraint("DistanceY", -1, 1, 0, 2, 12.0))
sketch19.setExpression("Constraints[30]", "Params.sketch19_width")
sketch19.setExpression("Constraints[31]", "Params.sketch19_width2")
sketch19.setExpression("Constraints[32]", "Params.sketch19_height")
sketch19.setExpression("Constraints[33]", "Params.sketch19_width3")
pad17 = body21.newObject("PartDesign::Pad", "Pad016")
pad17.Profile = sketch19
pad17.setExpression("Length", "Params.pad17_length")
body22 = doc.addObject("PartDesign::Body", "Body021")

# Sketch on XY plane
sketch20 = body22.newObject("Sketcher::SketchObject", "Sketch019")
sketch20.AttachmentSupport = (doc.getObject("XY_Plane021"), [""])
sketch20.MapMode = "FlatFace"
sketch20.AttachmentOffset = App.Placement(Vector(0, 0, 1), App.Rotation())
sketch20.addGeometry(Part.LineSegment(Vector(-5, 100, 0), Vector(-5, 90, 0)), False)
sketch20.addGeometry(Part.LineSegment(Vector(-5, 90, 0), Vector(-3, 90, 0)), False)
sketch20.addGeometry(Part.LineSegment(Vector(-3, 90, 0), Vector(-3, 100, 0)), False)
sketch20.addGeometry(Part.LineSegment(Vector(-3, 100, 0), Vector(-5, 100, 0)), False)
sketch20.addConstraint(Sketcher.Constraint("Coincident", 0, 2, 1, 1))
sketch20.addConstraint(Sketcher.Constraint("Coincident", 1, 2, 2, 1))
sketch20.addConstraint(Sketcher.Constraint("Coincident", 2, 2, 3, 1))
sketch20.addConstraint(Sketcher.Constraint("Coincident", 3, 2, 0, 1))
sketch20.addConstraint(Sketcher.Constraint("Vertical", 0))
sketch20.addConstraint(Sketcher.Constraint("Horizontal", 1))
sketch20.addConstraint(Sketcher.Constraint("Vertical", 2))
sketch20.addConstraint(Sketcher.Constraint("Horizontal", 3))
sketch20.addConstraint(Sketcher.Constraint("DistanceX", 1, 1, 1, 2, 2.0))
sketch20.addConstraint(Sketcher.Constraint("DistanceY", 0, 2, 0, 1, 10.0))
sketch20.addConstraint(Sketcher.Constraint("DistanceX", 0, 2, -1, 1, 5.0))
sketch20.addConstraint(Sketcher.Constraint("DistanceY", -1, 1, 0, 2, 90.0))
sketch20.setExpression("Constraints[8]", "Params.sketch20_width")
sketch20.setExpression("Constraints[9]", "Params.sketch20_height")
pad18 = body22.newObject("PartDesign::Pad", "Pad017")
pad18.Profile = sketch20
pad18.setExpression("Length", "Params.pad18_length")
body23 = doc.addObject("PartDesign::Body", "Body022")

# Sketch on XY plane
sketch21 = body23.newObject("Sketcher::SketchObject", "Sketch020")
sketch21.AttachmentSupport = (doc.getObject("XY_Plane022"), [""])
sketch21.MapMode = "FlatFace"
sketch21.AttachmentOffset = App.Placement(Vector(0, 0, 4), App.Rotation())
sketch21.addGeometry(Part.Circle(Vector(-11, 61, 0), Vector(0, 0, 1), 2.5), False)
sketch21.addConstraint(Sketcher.Constraint("Diameter", 0, 5.0))
sketch21.addConstraint(Sketcher.Constraint("DistanceX", 0, 3, -1, 1, 11.0))
sketch21.addConstraint(Sketcher.Constraint("DistanceY", -1, 1, 0, 3, 61.0))
sketch21.setExpression("Constraints[0]", "Params.sketch21_diameter")
pad19 = body23.newObject("PartDesign::Pad", "Pad018")
pad19.Profile = sketch21
pad19.setExpression("Length", "Params.pad19_length")
body24 = doc.addObject("PartDesign::Body", "Body023")

# Sketch on XY plane
sketch22 = body24.newObject("Sketcher::SketchObject", "Sketch021")
sketch22.AttachmentSupport = (doc.getObject("XY_Plane023"), [""])
sketch22.MapMode = "FlatFace"
sketch22.AttachmentOffset = App.Placement(Vector(0, 0, 1), App.Rotation())
sketch22.addGeometry(Part.LineSegment(Vector(-64, 100, 0), Vector(-64, 90, 0)), False)
sketch22.addGeometry(Part.LineSegment(Vector(-64, 90, 0), Vector(-62, 90, 0)), False)
sketch22.addGeometry(Part.LineSegment(Vector(-62, 90, 0), Vector(-62, 100, 0)), False)
sketch22.addGeometry(Part.LineSegment(Vector(-62, 100, 0), Vector(-64, 100, 0)), False)
sketch22.addConstraint(Sketcher.Constraint("Coincident", 0, 2, 1, 1))
sketch22.addConstraint(Sketcher.Constraint("Coincident", 1, 2, 2, 1))
sketch22.addConstraint(Sketcher.Constraint("Coincident", 2, 2, 3, 1))
sketch22.addConstraint(Sketcher.Constraint("Coincident", 3, 2, 0, 1))
sketch22.addConstraint(Sketcher.Constraint("Vertical", 0))
sketch22.addConstraint(Sketcher.Constraint("Horizontal", 1))
sketch22.addConstraint(Sketcher.Constraint("Vertical", 2))
sketch22.addConstraint(Sketcher.Constraint("Horizontal", 3))
sketch22.addConstraint(Sketcher.Constraint("DistanceX", 1, 1, 1, 2, 2.0))
sketch22.addConstraint(Sketcher.Constraint("DistanceY", 0, 2, 0, 1, 10.0))
sketch22.addConstraint(Sketcher.Constraint("DistanceX", 0, 2, -1, 1, 64.0))
sketch22.addConstraint(Sketcher.Constraint("DistanceY", -1, 1, 0, 2, 90.0))
sketch22.setExpression("Constraints[8]", "Params.sketch22_width")
sketch22.setExpression("Constraints[9]", "Params.sketch22_height")
pad20 = body24.newObject("PartDesign::Pad", "Pad019")
pad20.Profile = sketch22
pad20.setExpression("Length", "Params.pad20_length")
body25 = doc.addObject("PartDesign::Body", "Body024")
body25.AllowCompound = True

# Sketch on XY plane
sketch23 = body25.newObject("Sketcher::SketchObject", "Sketch022")
sketch23.AttachmentSupport = (doc.getObject("XY_Plane024"), [""])
sketch23.MapMode = "FlatFace"
sketch23.AttachmentOffset = App.Placement(Vector(0, 0, 1), App.Rotation())
sketch23.addGeometry(Part.Circle(Vector(-11, 61, 0), Vector(0, 0, 1), 3.5), False)
sketch23.addConstraint(Sketcher.Constraint("Diameter", 0, 7.0))
sketch23.addConstraint(Sketcher.Constraint("DistanceX", 0, 3, -1, 1, 11.0))
sketch23.addConstraint(Sketcher.Constraint("DistanceY", -1, 1, 0, 3, 61.0))
sketch23.setExpression("Constraints[0]", "Params.sketch23_diameter")
pad21 = body25.newObject("PartDesign::Pad", "Pad020")
pad21.Profile = sketch23
pad21.setExpression("Length", "Params.pad21_length")
doc.recompute()

boolean16 = body25.newObject("PartDesign::Boolean", "Boolean015")
boolean16.Type = "Fuse"
boolean16.addObjects([body24])
doc.recompute()

boolean17 = body25.newObject("PartDesign::Boolean", "Boolean016")
boolean17.Type = "Fuse"
boolean17.addObjects([body23])
body26 = doc.addObject("PartDesign::Body", "Body025")

# Sketch on XY plane
sketch24 = body26.newObject("Sketcher::SketchObject", "Sketch023")
sketch24.AttachmentSupport = (doc.getObject("XY_Plane025"), [""])
sketch24.MapMode = "FlatFace"
sketch24.AttachmentOffset = App.Placement(Vector(0, 0, 5), App.Rotation())
sketch24.addGeometry(Part.Circle(Vector(-56.5, 61, 0), Vector(0, 0, 1), 2.5), False)
sketch24.addConstraint(Sketcher.Constraint("Diameter", 0, 5.0))
sketch24.addConstraint(Sketcher.Constraint("DistanceY", -1, 1, 0, 3, 61.0))
sketch24.addConstraint(Sketcher.Constraint("DistanceX", 0, 3, -1, 1, 56.5))
sketch24.setExpression("Constraints[0]", "Params.sketch24_diameter")
pad22 = body26.newObject("PartDesign::Pad", "Pad021")
pad22.Profile = sketch24
pad22.setExpression("Length", "Params.pad22_length")
body27 = doc.addObject("PartDesign::Body", "Body026")

# Sketch on XY plane
sketch25 = body27.newObject("Sketcher::SketchObject", "Sketch024")
sketch25.AttachmentSupport = (doc.getObject("XY_Plane026"), [""])
sketch25.MapMode = "FlatFace"
sketch25.AttachmentOffset = App.Placement(Vector(0, 0, 1), App.Rotation())
sketch25.addGeometry(Part.Circle(Vector(-56.5, 61, 0), Vector(0, 0, 1), 3.5), False)
sketch25.addConstraint(Sketcher.Constraint("Diameter", 0, 7.0))
sketch25.addConstraint(Sketcher.Constraint("DistanceY", -1, 1, 0, 3, 61.0))
sketch25.addConstraint(Sketcher.Constraint("DistanceX", 0, 3, -1, 1, 56.5))
sketch25.setExpression("Constraints[0]", "Params.sketch25_diameter")
pad23 = body27.newObject("PartDesign::Pad", "Pad022")
pad23.Profile = sketch25
pad23.setExpression("Length", "Params.pad23_length")
body28 = doc.addObject("PartDesign::Body", "Body027")

# Sketch on XY plane
sketch26 = body28.newObject("Sketcher::SketchObject", "Sketch025")
sketch26.AttachmentSupport = (doc.getObject("XY_Plane027"), [""])
sketch26.MapMode = "FlatFace"
sketch26.AttachmentOffset = App.Placement(Vector(0, 0, 2), App.Rotation())
sketch26.addGeometry(Part.LineSegment(Vector(-67, 0, 0), Vector(-1, 0, 0)), False)
sketch26.addGeometry(Part.LineSegment(Vector(-1, 0, 0), Vector(-1, 62, 0)), False)
sketch26.addGeometry(Part.LineSegment(Vector(-1, 62, 0), Vector(5, 68, 0)), False)
sketch26.addGeometry(Part.LineSegment(Vector(5, 68, 0), Vector(5, 105, 0)), False)
sketch26.addGeometry(Part.LineSegment(Vector(5, 105, 0), Vector(-71, 105, 0)), False)
sketch26.addGeometry(Part.LineSegment(Vector(-71, 105, 0), Vector(-71, 68, 0)), False)
sketch26.addGeometry(Part.LineSegment(Vector(-71, 68, 0), Vector(-67, 62, 0)), False)
sketch26.addGeometry(Part.LineSegment(Vector(-67, 62, 0), Vector(-67, 0, 0)), False)
sketch26.addConstraint(Sketcher.Constraint("Coincident", 0, 2, 1, 1))
sketch26.addConstraint(Sketcher.Constraint("Coincident", 1, 2, 2, 1))
sketch26.addConstraint(Sketcher.Constraint("Coincident", 2, 2, 3, 1))
sketch26.addConstraint(Sketcher.Constraint("Coincident", 3, 2, 4, 1))
sketch26.addConstraint(Sketcher.Constraint("Coincident", 4, 2, 5, 1))
sketch26.addConstraint(Sketcher.Constraint("Coincident", 5, 2, 6, 1))
sketch26.addConstraint(Sketcher.Constraint("Coincident", 6, 2, 7, 1))
sketch26.addConstraint(Sketcher.Constraint("Coincident", 7, 2, 0, 1))
sketch26.addConstraint(Sketcher.Constraint("Horizontal", 0))
sketch26.addConstraint(Sketcher.Constraint("Vertical", 1))
sketch26.addConstraint(Sketcher.Constraint("Vertical", 3))
sketch26.addConstraint(Sketcher.Constraint("Horizontal", 4))
sketch26.addConstraint(Sketcher.Constraint("Vertical", 5))
sketch26.addConstraint(Sketcher.Constraint("Vertical", 7))
sketch26.addConstraint(Sketcher.Constraint("PointOnObject", 0, 2, -1))
sketch26.addConstraint(Sketcher.Constraint("Horizontal", 2, 2, 5, 2))
sketch26.addConstraint(Sketcher.Constraint("Horizontal", 1, 2, 6, 2))
sketch26.addConstraint(Sketcher.Constraint("DistanceX", 0, 1, 0, 2, 66.0))
sketch26.addConstraint(Sketcher.Constraint("DistanceX", 4, 2, 4, 1, 76.0))
sketch26.addConstraint(Sketcher.Constraint("DistanceY", 1, 1, 1, 2, 62.0))
sketch26.addConstraint(Sketcher.Constraint("DistanceX", 0, 2, -1, 1, 1.0))
sketch26.addConstraint(Sketcher.Constraint("DistanceX", -1, 1, 2, 2, 5.0))
sketch26.addConstraint(Sketcher.Constraint("DistanceY", -1, 1, 3, 2, 105.0))
sketch26.addConstraint(Sketcher.Constraint("DistanceY", 3, 1, 3, 2, 37.18))
sketch26.setExpression("Constraints[17]", "Params.sketch26_width")
sketch26.setExpression("Constraints[18]", "Params.sketch26_width2")
sketch26.setExpression("Constraints[19]", "Params.sketch26_height")
sketch26.setExpression("Constraints[23]", "Params.sketch26_height2")
pad24 = body28.newObject("PartDesign::Pad", "Pad023")
pad24.Profile = sketch26
pad24.setExpression("Length", "Params.pad24_length")
body29 = doc.addObject("PartDesign::Body", "Body028")
doc.recompute()

body29.BaseFeature = body21
doc.recompute()

# Sketch on XY plane
sketch27 = body29.newObject("Sketcher::SketchObject", "Sketch026")
sketch27.AttachmentSupport = (doc.getObject("XY_Plane028"), [""])
sketch27.MapMode = "FlatFace"
sketch27.addGeometry(Part.LineSegment(Vector(-68, 0, 0), Vector(0, 0, 0)), False)
sketch27.addGeometry(Part.LineSegment(Vector(0, 0, 0), Vector(0, 62, 0)), False)
sketch27.addGeometry(Part.LineSegment(Vector(0, 62, 0), Vector(6, 68, 0)), False)
sketch27.addGeometry(Part.LineSegment(Vector(6, 68, 0), Vector(6, 107, 0)), False)
sketch27.addGeometry(Part.LineSegment(Vector(6, 107, 0), Vector(-72, 107, 0)), False)
sketch27.addGeometry(Part.LineSegment(Vector(-72, 107, 0), Vector(-72, 68, 0)), False)
sketch27.addGeometry(Part.LineSegment(Vector(-72, 68, 0), Vector(-68, 62, 0)), False)
sketch27.addGeometry(Part.LineSegment(Vector(-68, 62, 0), Vector(-68, 0, 0)), False)
sketch27.addConstraint(Sketcher.Constraint("Coincident", 0, 2, 1, 1))
sketch27.addConstraint(Sketcher.Constraint("Coincident", 1, 2, 2, 1))
sketch27.addConstraint(Sketcher.Constraint("Coincident", 2, 2, 3, 1))
sketch27.addConstraint(Sketcher.Constraint("Coincident", 3, 2, 4, 1))
sketch27.addConstraint(Sketcher.Constraint("Coincident", 4, 2, 5, 1))
sketch27.addConstraint(Sketcher.Constraint("Coincident", 5, 2, 6, 1))
sketch27.addConstraint(Sketcher.Constraint("Coincident", 6, 2, 7, 1))
sketch27.addConstraint(Sketcher.Constraint("Coincident", 7, 2, 0, 1))
sketch27.addConstraint(Sketcher.Constraint("Horizontal", 0))
sketch27.addConstraint(Sketcher.Constraint("Vertical", 1))
sketch27.addConstraint(Sketcher.Constraint("Vertical", 3))
sketch27.addConstraint(Sketcher.Constraint("Horizontal", 4))
sketch27.addConstraint(Sketcher.Constraint("Vertical", 5))
sketch27.addConstraint(Sketcher.Constraint("Vertical", 7))
sketch27.addConstraint(Sketcher.Constraint("Coincident", 0, 2, -1, 1))
sketch27.addConstraint(Sketcher.Constraint("Horizontal", 2, 2, 5, 2))
sketch27.addConstraint(Sketcher.Constraint("Horizontal", 1, 2, 6, 2))
sketch27.addConstraint(Sketcher.Constraint("DistanceX", 0, 1, 0, 2, 68.0))
sketch27.addConstraint(Sketcher.Constraint("DistanceX", 4, 2, 4, 1, 78.0))
sketch27.addConstraint(Sketcher.Constraint("DistanceY", 1, 1, 1, 2, 62.0))
sketch27.addConstraint(Sketcher.Constraint("DistanceX", -1, 1, 2, 2, 6.0))
sketch27.addConstraint(Sketcher.Constraint("DistanceY", -1, 1, 3, 2, 107.0))
sketch27.addConstraint(Sketcher.Constraint("DistanceY", 3, 1, 3, 2, 39.18))
sketch27.setExpression("Constraints[17]", "Params.sketch27_width")
sketch27.setExpression("Constraints[18]", "Params.sketch27_width2")
sketch27.setExpression("Constraints[19]", "Params.sketch27_height")
sketch27.setExpression("Constraints[22]", "Params.sketch27_height2")
pad25 = body29.newObject("PartDesign::Pad", "Pad024")
pad25.Profile = sketch27
pad25.setExpression("Length", "Params.pad25_length")

# Sketch on XY plane
sketch28 = body29.newObject("Sketcher::SketchObject", "Sketch027")
sketch28.AttachmentSupport = (doc.getObject("XY_Plane028"), [""])
sketch28.MapMode = "FlatFace"
sketch28.AttachmentOffset = App.Placement(Vector(0, 0, 2), App.Rotation())
sketch28.addGeometry(Part.LineSegment(Vector(-67, 0, 0), Vector(-1, 0, 0)), False)
sketch28.addGeometry(Part.LineSegment(Vector(-1, 0, 0), Vector(-1, 62, 0)), False)
sketch28.addGeometry(Part.LineSegment(Vector(-1, 62, 0), Vector(5, 68, 0)), False)
sketch28.addGeometry(Part.LineSegment(Vector(5, 68, 0), Vector(5, 105, 0)), False)
sketch28.addGeometry(Part.LineSegment(Vector(5, 105, 0), Vector(-71, 105, 0)), False)
sketch28.addGeometry(Part.LineSegment(Vector(-71, 105, 0), Vector(-71, 68, 0)), False)
sketch28.addGeometry(Part.LineSegment(Vector(-71, 68, 0), Vector(-67, 62, 0)), False)
sketch28.addGeometry(Part.LineSegment(Vector(-67, 62, 0), Vector(-67, 0, 0)), False)
sketch28.addConstraint(Sketcher.Constraint("Coincident", 0, 2, 1, 1))
sketch28.addConstraint(Sketcher.Constraint("Coincident", 1, 2, 2, 1))
sketch28.addConstraint(Sketcher.Constraint("Coincident", 2, 2, 3, 1))
sketch28.addConstraint(Sketcher.Constraint("Coincident", 3, 2, 4, 1))
sketch28.addConstraint(Sketcher.Constraint("Coincident", 4, 2, 5, 1))
sketch28.addConstraint(Sketcher.Constraint("Coincident", 5, 2, 6, 1))
sketch28.addConstraint(Sketcher.Constraint("Coincident", 6, 2, 7, 1))
sketch28.addConstraint(Sketcher.Constraint("Coincident", 7, 2, 0, 1))
sketch28.addConstraint(Sketcher.Constraint("Horizontal", 0))
sketch28.addConstraint(Sketcher.Constraint("Vertical", 1))
sketch28.addConstraint(Sketcher.Constraint("Vertical", 3))
sketch28.addConstraint(Sketcher.Constraint("Horizontal", 4))
sketch28.addConstraint(Sketcher.Constraint("Vertical", 5))
sketch28.addConstraint(Sketcher.Constraint("Vertical", 7))
sketch28.addConstraint(Sketcher.Constraint("PointOnObject", 0, 2, -1))
sketch28.addConstraint(Sketcher.Constraint("Horizontal", 2, 2, 5, 2))
sketch28.addConstraint(Sketcher.Constraint("Horizontal", 1, 2, 6, 2))
sketch28.addConstraint(Sketcher.Constraint("DistanceX", 0, 1, 0, 2, 66.0))
sketch28.addConstraint(Sketcher.Constraint("DistanceX", 4, 2, 4, 1, 76.0))
sketch28.addConstraint(Sketcher.Constraint("DistanceY", 1, 1, 1, 2, 62.0))
sketch28.addConstraint(Sketcher.Constraint("DistanceX", 0, 2, -1, 1, 1.0))
sketch28.addConstraint(Sketcher.Constraint("DistanceX", -1, 1, 2, 2, 5.0))
sketch28.addConstraint(Sketcher.Constraint("DistanceY", -1, 1, 3, 2, 105.0))
sketch28.addConstraint(Sketcher.Constraint("DistanceY", 3, 1, 3, 2, 37.18))
sketch28.setExpression("Constraints[17]", "Params.sketch28_width")
sketch28.setExpression("Constraints[18]", "Params.sketch28_width2")
sketch28.setExpression("Constraints[19]", "Params.sketch28_height")
sketch28.setExpression("Constraints[23]", "Params.sketch28_height2")
pad26 = body29.newObject("PartDesign::Pad", "Pad025")
pad26.Profile = sketch28
pad26.setExpression("Length", "Params.pad26_length")
doc.recompute()

boolean18 = body29.newObject("PartDesign::Boolean", "Boolean017")
boolean18.Type = "Cut"
boolean18.addObjects([body28])
doc.recompute()

boolean19 = body29.newObject("PartDesign::Boolean", "Boolean018")
boolean19.Type = "Fuse"
boolean19.addObjects([body27])
doc.recompute()

boolean20 = body29.newObject("PartDesign::Boolean", "Boolean019")
boolean20.Type = "Fuse"
boolean20.addObjects([body26])
doc.recompute()

boolean21 = body29.newObject("PartDesign::Boolean", "Boolean020")
boolean21.Type = "Fuse"
boolean21.addObjects([body25])
doc.recompute()

boolean22 = body29.newObject("PartDesign::Boolean", "Boolean021")
boolean22.Type = "Fuse"
boolean22.addObjects([body22])
doc.recompute()

boolean23 = body29.newObject("PartDesign::Boolean", "Boolean022")
boolean23.Type = "Fuse"
boolean23.addObjects([body21])
doc.recompute()

boolean24 = body29.newObject("PartDesign::Boolean", "Boolean023")
boolean24.Type = "Fuse"
boolean24.addObjects([body20])
doc.recompute()

boolean25 = body29.newObject("PartDesign::Boolean", "Boolean024")
boolean25.Type = "Cut"
boolean25.addObjects([body5])
doc.recompute()

boolean26 = body29.newObject("PartDesign::Boolean", "Boolean025")
boolean26.Type = "Cut"
boolean26.addObjects([body4])
doc.recompute()

boolean27 = body29.newObject("PartDesign::Boolean", "Boolean026")
boolean27.Type = "Cut"
boolean27.addObjects([body3])
doc.recompute()

boolean28 = body29.newObject("PartDesign::Boolean", "Boolean027")
boolean28.Type = "Cut"
boolean28.addObjects([body])
doc.recompute()

fillet = body29.newObject("PartDesign::Fillet", "Fillet")
fillet.Base = (boolean28, edges_at(boolean28, [(-68, 31, 0)]))
fillet.setExpression("Radius", "Params.fillet_radius")
doc.recompute()

fillet2 = body29.newObject("PartDesign::Fillet", "Fillet001")
fillet2.Base = (fillet, edges_at(fillet, [(0, 31, 0)]))
fillet2.setExpression("Radius", "Params.fillet2_radius")
doc.recompute()

fillet3 = body29.newObject("PartDesign::Fillet", "Fillet002")
fillet3.Base = (fillet2, edges_at(fillet2, [(-72, 87.41, 0)]))
fillet3.setExpression("Radius", "Params.fillet3_radius")
doc.recompute()

fillet4 = body29.newObject("PartDesign::Fillet", "Fillet003")
fillet4.Base = (fillet3, edges_at(fillet3, [(6, 87.41, 0)]))
fillet4.setExpression("Radius", "Params.fillet4_radius")
doc.recompute()

fillet5 = body29.newObject("PartDesign::Fillet", "Fillet004")
fillet5.Base = (fillet4, edges_at(fillet4, [(-33, 107, 0)]))
fillet5.setExpression("Radius", "Params.fillet5_radius")

doc.recompute()
